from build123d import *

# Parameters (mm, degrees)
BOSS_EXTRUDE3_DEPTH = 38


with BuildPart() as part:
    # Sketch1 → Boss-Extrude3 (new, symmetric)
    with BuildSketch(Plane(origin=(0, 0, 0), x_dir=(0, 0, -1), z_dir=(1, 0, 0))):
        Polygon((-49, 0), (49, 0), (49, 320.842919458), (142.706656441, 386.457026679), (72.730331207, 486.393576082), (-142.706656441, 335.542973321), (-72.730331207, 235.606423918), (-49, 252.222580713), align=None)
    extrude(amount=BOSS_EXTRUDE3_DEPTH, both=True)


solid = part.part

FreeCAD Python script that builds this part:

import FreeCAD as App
import Part
import Sketcher
from FreeCAD import Vector
Q = App.Units.Quantity

doc = App.newDocument("Part")
params = doc.addObject("Spreadsheet::Sheet", "Params")
for row, (alias, value) in enumerate([
    ("sketch1_height", "98 mm"),
    ("sketch1_length", "122 mm"),
    ("sketch1_length2", "263 mm"),
    ("pad1_length", "76 mm"),
], start=1):
    params.set(f"A{row}", alias)
    params.set(f"B{row}", "=" + value)
    params.setAlias(f"B{row}", alias)

body = doc.addObject("PartDesign::Body", "Body")

# Sketch on YZ plane
sketch1 = body.newObject("Sketcher::SketchObject", "Sketch")
sketch1.AttachmentSupport = (doc.getObject("YZ_Plane"), [""])
sketch1.MapMode = "FlatFace"
sketch1.addGeometry([
    Part.LineSegment(Vector(0, 49, 0), Vector(0, -49, 0)),  # 0
    Part.LineSegment(Vector(0, -49, 0), Vector(320.842919, -49, 0)),  # 1
    Part.LineSegment(Vector(320.842919, -49, 0), Vector(386.457027, -142.706656, 0)),  # 2
    Part.LineSegment(Vector(386.457027, -142.706656, 0), Vector(486.393576, -72.730331, 0)),  # 3
    Part.LineSegment(Vector(486.393576, -72.730331, 0), Vector(335.542973, 142.706656, 0)),  # 4
    Part.LineSegment(Vector(335.542973, 142.706656, 0), Vector(235.606424, 72.730331, 0)),  # 5
    Part.LineSegment(Vector(235.606424, 72.730331, 0), Vector(252.222581, 49, 0)),  # 6
    Part.LineSegment(Vector(252.222581, 49, 0), Vector(0, 49, 0)),  # 7
], False)
sketch1.addConstraint([
    Sketcher.Constraint("Coincident", 0, 2, 1, 1),
    Sketcher.Constraint("Coincident", 1, 2, 2, 1),
    Sketcher.Constraint("Coincident", 2, 2, 3, 1),
    Sketcher.Constraint("Coincident", 3, 2, 4, 1),
    Sketcher.Constraint("Coincident", 4, 2, 5, 1),
    Sketcher.Constraint("Coincident", 5, 2, 6, 1),
    Sketcher.Constraint("Coincident", 6, 2, 7, 1),
    Sketcher.Constraint("Coincident", 7, 2, 0, 1),
    Sketcher.Constraint("Vertical", 0),
    Sketcher.Constraint("Horizontal", 1),
    Sketcher.Constraint("Horizontal", 7),
    Sketcher.Constraint("Symmetric", 0, 2, 7, 2, -1, 1),
    Sketcher.Constraint("Perpendicular", 2, 3),
    Sketcher.Constraint("Perpendicular", 3, 4),
    Sketcher.Constraint("Perpendicular", 4, 5),
    Sketcher.Constraint("Perpendicular", 5, 6),
    Sketcher.Constraint("Equal", 3, 5),
    Sketcher.Constraint("DistanceY", 0, 2, 0, 1, Q("98 mm")),
    Sketcher.Constraint("Angle", 2, Q("-55 deg")),
    Sketcher.Constraint("Distance", 3, Q("122 mm")),
    Sketcher.Constraint("Distance", 4, Q("263 mm")),
    Sketcher.Constraint("DistanceX", 1, 1, 1, 2, Q("320.842919 mm")),
    Sketcher.Constraint("DistanceY", 3, 2, -1, 1, Q("72.730331 mm")),
])
sketch1.setExpression("Constraints[17]", "Params.sketch1_height")
sketch1.setExpression("Constraints[19]", "Params.sketch1_length")
sketch1.setExpression("Constraints[20]", "Params.sketch1_length2")
pad1 = body.newObject("PartDesign::Pad", "Pad")
pad1.Profile = sketch1
pad1.setExpression("Length", "Params.pad1_length")
pad1.Midplane = True

doc.recompute()
